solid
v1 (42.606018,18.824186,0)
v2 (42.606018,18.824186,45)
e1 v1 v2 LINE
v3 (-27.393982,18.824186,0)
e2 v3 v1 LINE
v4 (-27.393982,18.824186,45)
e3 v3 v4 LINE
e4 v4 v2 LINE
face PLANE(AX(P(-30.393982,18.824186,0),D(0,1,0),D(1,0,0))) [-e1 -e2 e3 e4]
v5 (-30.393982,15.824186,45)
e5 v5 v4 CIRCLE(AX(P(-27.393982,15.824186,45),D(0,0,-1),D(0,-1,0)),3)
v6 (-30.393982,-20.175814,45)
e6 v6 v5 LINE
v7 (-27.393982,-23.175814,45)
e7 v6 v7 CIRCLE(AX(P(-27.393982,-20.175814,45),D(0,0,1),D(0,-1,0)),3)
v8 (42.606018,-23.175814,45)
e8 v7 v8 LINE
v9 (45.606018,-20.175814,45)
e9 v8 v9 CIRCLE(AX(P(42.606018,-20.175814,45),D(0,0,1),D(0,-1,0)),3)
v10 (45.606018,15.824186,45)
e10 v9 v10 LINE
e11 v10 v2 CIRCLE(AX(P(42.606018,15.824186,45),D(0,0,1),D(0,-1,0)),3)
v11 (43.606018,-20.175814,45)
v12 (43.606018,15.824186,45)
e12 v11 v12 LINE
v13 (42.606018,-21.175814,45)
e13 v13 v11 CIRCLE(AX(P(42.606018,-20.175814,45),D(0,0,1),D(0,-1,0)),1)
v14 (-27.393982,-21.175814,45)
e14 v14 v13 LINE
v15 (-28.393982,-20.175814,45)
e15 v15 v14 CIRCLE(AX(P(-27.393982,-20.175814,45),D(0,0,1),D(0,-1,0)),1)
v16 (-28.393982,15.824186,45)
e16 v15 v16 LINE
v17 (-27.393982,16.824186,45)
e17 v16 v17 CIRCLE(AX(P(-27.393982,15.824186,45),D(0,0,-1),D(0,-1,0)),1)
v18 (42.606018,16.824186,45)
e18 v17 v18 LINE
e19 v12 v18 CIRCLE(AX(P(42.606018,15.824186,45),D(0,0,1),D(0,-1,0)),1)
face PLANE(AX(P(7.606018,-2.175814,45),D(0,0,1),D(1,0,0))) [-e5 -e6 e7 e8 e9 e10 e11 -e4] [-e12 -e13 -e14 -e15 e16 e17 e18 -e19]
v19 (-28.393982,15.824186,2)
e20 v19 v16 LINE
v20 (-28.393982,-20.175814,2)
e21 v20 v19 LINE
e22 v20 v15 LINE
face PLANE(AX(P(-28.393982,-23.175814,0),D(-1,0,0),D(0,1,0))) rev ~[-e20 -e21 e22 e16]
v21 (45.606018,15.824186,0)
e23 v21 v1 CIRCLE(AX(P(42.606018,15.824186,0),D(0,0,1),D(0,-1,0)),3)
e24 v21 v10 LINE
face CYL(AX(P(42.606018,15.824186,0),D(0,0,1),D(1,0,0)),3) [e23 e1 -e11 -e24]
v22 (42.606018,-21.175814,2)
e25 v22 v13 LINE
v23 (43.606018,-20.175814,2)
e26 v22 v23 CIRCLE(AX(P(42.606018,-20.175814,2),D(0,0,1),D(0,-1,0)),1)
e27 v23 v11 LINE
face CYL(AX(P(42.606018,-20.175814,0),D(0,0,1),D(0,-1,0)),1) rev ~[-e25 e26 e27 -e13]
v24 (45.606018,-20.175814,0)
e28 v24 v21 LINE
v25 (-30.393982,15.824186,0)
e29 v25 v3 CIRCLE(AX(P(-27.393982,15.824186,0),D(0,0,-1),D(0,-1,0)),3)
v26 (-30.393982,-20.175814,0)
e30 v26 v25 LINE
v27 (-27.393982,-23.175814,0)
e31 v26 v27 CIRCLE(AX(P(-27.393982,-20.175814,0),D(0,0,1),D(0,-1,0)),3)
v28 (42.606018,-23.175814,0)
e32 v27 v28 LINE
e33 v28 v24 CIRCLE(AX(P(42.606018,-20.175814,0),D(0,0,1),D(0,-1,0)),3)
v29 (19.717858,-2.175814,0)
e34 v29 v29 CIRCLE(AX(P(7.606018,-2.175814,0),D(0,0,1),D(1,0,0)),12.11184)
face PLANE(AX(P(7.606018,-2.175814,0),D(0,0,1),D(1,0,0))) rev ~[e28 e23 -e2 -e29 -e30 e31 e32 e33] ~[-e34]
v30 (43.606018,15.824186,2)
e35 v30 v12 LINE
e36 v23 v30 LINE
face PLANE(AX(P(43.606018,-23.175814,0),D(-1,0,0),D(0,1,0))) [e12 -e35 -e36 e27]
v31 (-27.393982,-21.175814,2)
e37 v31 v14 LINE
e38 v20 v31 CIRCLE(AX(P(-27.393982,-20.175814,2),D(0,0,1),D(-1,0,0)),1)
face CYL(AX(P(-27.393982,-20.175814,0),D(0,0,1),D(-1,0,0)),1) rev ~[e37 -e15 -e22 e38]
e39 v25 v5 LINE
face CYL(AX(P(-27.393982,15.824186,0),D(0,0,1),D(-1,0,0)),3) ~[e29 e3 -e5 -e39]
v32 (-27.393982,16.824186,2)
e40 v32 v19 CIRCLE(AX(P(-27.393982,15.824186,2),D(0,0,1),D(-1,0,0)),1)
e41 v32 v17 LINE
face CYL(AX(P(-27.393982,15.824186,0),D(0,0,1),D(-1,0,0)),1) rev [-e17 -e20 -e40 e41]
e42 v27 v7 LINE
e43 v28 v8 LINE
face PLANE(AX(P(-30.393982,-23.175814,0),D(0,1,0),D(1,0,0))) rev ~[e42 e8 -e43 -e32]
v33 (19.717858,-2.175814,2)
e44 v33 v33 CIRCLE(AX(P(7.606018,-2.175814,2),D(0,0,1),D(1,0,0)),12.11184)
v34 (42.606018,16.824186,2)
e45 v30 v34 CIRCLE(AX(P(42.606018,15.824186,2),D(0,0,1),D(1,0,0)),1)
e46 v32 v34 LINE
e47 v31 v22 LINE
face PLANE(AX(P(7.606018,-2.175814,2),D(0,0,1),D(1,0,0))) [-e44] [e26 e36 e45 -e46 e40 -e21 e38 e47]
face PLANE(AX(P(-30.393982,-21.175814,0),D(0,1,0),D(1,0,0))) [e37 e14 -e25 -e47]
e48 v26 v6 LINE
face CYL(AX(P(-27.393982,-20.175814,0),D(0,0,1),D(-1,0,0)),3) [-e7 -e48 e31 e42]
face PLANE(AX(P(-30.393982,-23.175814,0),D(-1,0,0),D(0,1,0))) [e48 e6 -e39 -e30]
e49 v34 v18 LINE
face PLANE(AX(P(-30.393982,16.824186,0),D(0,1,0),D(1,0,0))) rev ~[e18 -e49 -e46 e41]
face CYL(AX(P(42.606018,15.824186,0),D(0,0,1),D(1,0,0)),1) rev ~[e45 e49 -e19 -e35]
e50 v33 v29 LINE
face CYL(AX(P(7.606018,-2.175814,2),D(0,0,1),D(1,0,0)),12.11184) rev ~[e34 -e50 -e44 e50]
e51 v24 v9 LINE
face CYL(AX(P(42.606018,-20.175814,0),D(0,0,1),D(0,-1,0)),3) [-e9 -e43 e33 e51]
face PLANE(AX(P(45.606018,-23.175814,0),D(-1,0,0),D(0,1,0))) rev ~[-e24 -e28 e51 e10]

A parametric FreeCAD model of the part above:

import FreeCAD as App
import Part
import Sketcher
from FreeCAD import Vector
Q = App.Units.Quantity


def edges_at(feature, points):
    """Names of the edges that pass closest to the given points."""
    edges = feature.Shape.Edges
    near = lambda p: min(range(len(edges)), key=lambda i: edges[i].distToShape(Part.Vertex(*p))[0])
    return sorted({f"Edge{near(p) + 1}" for p in points})


def faces_at(feature, points):
    """Names of the faces that lie closest to the given points."""
    faces = feature.Shape.Faces
    near = lambda p: min(range(len(faces)), key=lambda i: faces[i].distToShape(Part.Vertex(*p))[0])
    return sorted({f"Face{near(p) + 1}" for p in points})

doc = App.newDocument("Part")
body = doc.addObject("PartDesign::Body", "Body")

sketch1 = body.newObject("Sketcher::SketchObject", "Sketch")
sketch1.AttachmentSupport = (doc.getObject("XY_Plane"), [""])
sketch1.MapMode = "FlatFace"
sketch1.addGeometry(Part.LineSegment(Vector(-30, 19, 0), Vector(-30, -23, 0)), False)
sketch1.addGeometry(Part.LineSegment(Vector(-30, -23, 0), Vector(46, -23, 0)), False)
sketch1.addGeometry(Part.LineSegment(Vector(46, -23, 0), Vector(46, 19, 0)), False)
sketch1.addGeometry(Part.LineSegment(Vector(46, 19, 0), Vector(-30, 19, 0)), False)
sketch1.addConstraint(Sketcher.Constraint("Coincident", 0, 2, 1, 1))
sketch1.addConstraint(Sketcher.Constraint("Coincident", 1, 2, 2, 1))
sketch1.addConstraint(Sketcher.Constraint("Coincident", 2, 2, 3, 1))
sketch1.addConstraint(Sketcher.Constraint("Coincident", 3, 2, 0, 1))
sketch1.addConstraint(Sketcher.Constraint("Vertical", 0))
sketch1.addConstraint(Sketcher.Constraint("Horizontal", 1))
sketch1.addConstraint(Sketcher.Constraint("Vertical", 2))
sketch1.addConstraint(Sketcher.Constraint("Horizontal", 3))
sketch1.addConstraint(Sketcher.Constraint("DistanceX", 1, 1, 1, 2, Q("76 mm")))
sketch1.addConstraint(Sketcher.Constraint("DistanceY", 0, 2, 0, 1, Q("42 mm")))
sketch1.addConstraint(Sketcher.Constraint("DistanceX", 0, 2, -1, 1, Q("30.393982 mm")))
sketch1.addConstraint(Sketcher.Constraint("DistanceY", 0, 2, -1, 1, Q("23.175814 mm")))
pad1 = body.newObject("PartDesign::Pad", "Pad")
pad1.Profile = sketch1
pad1.Length = 45
doc.recompute()

fillet = body.newObject("PartDesign::Fillet", "Fillet")
fillet.Base = (pad1, edges_at(pad1, [
    (-30.394, -23.176, 22.5),
    (-30.394, 18.824, 22.5),
    (45.606, -23.176, 22.5),
    (45.606, 18.824, 22.5),
]))
fillet.Radius = 3
doc.recompute()

thickness = body.newObject("PartDesign::Thickness", "Thickness")
thickness.Base = (fillet, faces_at(fillet, [(7.606, -2.176, 45)]))
thickness.Value = 2
thickness.Reversed = True
thickness.Join = "Arc"

sketch2 = body.newObject("Sketcher::SketchObject", "Sketch001")
sketch2.AttachmentSupport = (doc.getObject("XY_Plane"), [""])
sketch2.MapMode = "FlatFace"
sketch2.AttachmentOffset = App.Placement(Vector(0, 0, 2), App.Rotation())
sketch2.addGeometry(Part.Circle(Vector(8, -2, 0), Vector(0, 0, 1), 12), False)
sketch2.addConstraint(Sketcher.Constraint("Diameter", 0, Q("24.22368 mm")))
sketch2.addConstraint(Sketcher.Constraint("DistanceX", -1, 1, 0, 3, Q("7.606018 mm")))
sketch2.addConstraint(Sketcher.Constraint("DistanceY", 0, 3, -1, 1, Q("2.175814 mm")))
pocket1 = body.newObject("PartDesign::Pocket", "Pocket")
pocket1.Profile = sketch2
pocket1.Length = 25

doc.recompute()
